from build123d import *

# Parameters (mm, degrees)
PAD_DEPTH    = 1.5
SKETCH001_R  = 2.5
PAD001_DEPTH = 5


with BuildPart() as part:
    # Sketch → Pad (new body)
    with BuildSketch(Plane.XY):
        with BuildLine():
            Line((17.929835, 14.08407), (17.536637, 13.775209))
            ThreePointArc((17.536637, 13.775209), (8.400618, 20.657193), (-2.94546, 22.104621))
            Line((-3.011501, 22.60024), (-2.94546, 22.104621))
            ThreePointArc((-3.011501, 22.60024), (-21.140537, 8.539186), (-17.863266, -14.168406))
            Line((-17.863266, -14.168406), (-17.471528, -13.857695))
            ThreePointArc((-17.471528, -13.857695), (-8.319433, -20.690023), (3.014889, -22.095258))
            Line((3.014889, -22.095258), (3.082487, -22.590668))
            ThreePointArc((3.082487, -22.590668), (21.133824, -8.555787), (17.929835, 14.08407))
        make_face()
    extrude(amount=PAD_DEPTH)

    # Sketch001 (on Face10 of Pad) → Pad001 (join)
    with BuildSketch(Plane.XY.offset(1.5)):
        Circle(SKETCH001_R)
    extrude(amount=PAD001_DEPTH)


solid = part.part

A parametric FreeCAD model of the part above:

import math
import FreeCAD as App
import Part
import Sketcher
Q = App.Units.Quantity

doc = App.newDocument("Part")
body = doc.addObject("PartDesign::Body", "Body")

# Sketch on XY plane
sketch1 = doc.addObject("Sketcher::SketchObject", "Sketch")
body.addObject(sketch1)
sketch1.AttachmentSupport = (doc.XY_Plane, [""])
sketch1.MapMode = "FlatFace"
sketch1.addGeometry(Part.LineSegment(App.Vector(17.929835, 14.08407, 0), App.Vector(17.536637, 13.775209, 0)), False)
sketch1.addGeometry(Part.ArcOfCircle(Part.Circle(App.Vector(0, -0.000001, 0), App.Vector(0, 0, 1), 22.300001), math.radians(38.150002), math.radians(97.59)), False)
sketch1.addGeometry(Part.LineSegment(App.Vector(-2.94546, 22.104621, 0), App.Vector(-3.011501, 22.60024, 0)), False)
sketch1.addGeometry(Part.ArcOfCircle(Part.Circle(App.Vector(0, 0, 0), App.Vector(0, 0, 1), 22.8), math.radians(97.589998), math.radians(218.420001)), False)
sketch1.addGeometry(Part.LineSegment(App.Vector(-17.863266, -14.168406, 0), App.Vector(-17.471528, -13.857695, 0)), False)
sketch1.addGeometry(Part.ArcOfCircle(Part.Circle(App.Vector(-0.000002, -0.000004, 0), App.Vector(0, 0, 1), 22.299996), math.radians(-141.580005), math.radians(-82.229992)), False)
sketch1.addGeometry(Part.LineSegment(App.Vector(3.014889, -22.095258, 0), App.Vector(3.082487, -22.590668, 0)), False)
sketch1.addGeometry(Part.ArcOfCircle(Part.Circle(App.Vector(0, 0, 0), App.Vector(0, 0, 1), 22.8), math.radians(-82.23), math.radians(38.149999)), False)
sketch1.addConstraint(Sketcher.Constraint("Coincident", 0, 2, 1, 1))
sketch1.addConstraint(Sketcher.Constraint("Coincident", 1, 2, 2, 1))
sketch1.addConstraint(Sketcher.Constraint("Coincident", 2, 2, 3, 1))
sketch1.addConstraint(Sketcher.Constraint("Coincident", 3, 2, 4, 1))
sketch1.addConstraint(Sketcher.Constraint("Coincident", 4, 2, 5, 1))
sketch1.addConstraint(Sketcher.Constraint("Coincident", 5, 2, 6, 1))
sketch1.addConstraint(Sketcher.Constraint("Coincident", 6, 2, 7, 1))
sketch1.addConstraint(Sketcher.Constraint("Coincident", 7, 2, 0, 1))
sketch1.addConstraint(Sketcher.Constraint("Coincident", 1, 3, -1, 1))
sketch1.addConstraint(Sketcher.Constraint("Coincident", 3, 3, -1, 1))
sketch1.addConstraint(Sketcher.Constraint("Coincident", 5, 3, -1, 1))
sketch1.addConstraint(Sketcher.Constraint("Coincident", 7, 3, -1, 1))
sketch1.addConstraint(Sketcher.Constraint("Equal", 3, 7))
sketch1.addConstraint(Sketcher.Constraint("Equal", 2, 4))
sketch1.addConstraint(Sketcher.Constraint("Radius", 1, Q("22.300001 mm")))
sketch1.addConstraint(Sketcher.Constraint("Radius", 3, Q("22.8 mm")))
sketch1.addConstraint(Sketcher.Constraint("Angle", 0, Q("-141.850008 deg")))
sketch1.addConstraint(Sketcher.Constraint("DistanceX", 2, 2, -1, 1, Q("3.011501 mm")))
sketch1.addConstraint(Sketcher.Constraint("DistanceX", 5, 2, 6, 2, Q("0.067598 mm")))
sketch1.addConstraint(Sketcher.Constraint("DistanceY", -1, 1, 0, 2, Q("13.775209 mm")))
sketch1.addConstraint(Sketcher.Constraint("DistanceX", 1, 2, -1, 1, Q("2.94546 mm")))
sketch1.addConstraint(Sketcher.Constraint("DistanceX", -1, 1, 5, 2, Q("3.014889 mm")))
sketch1.addConstraint(Sketcher.Constraint("DistanceX", 3, 2, 4, 2, Q("0.391738 mm")))
sketch1.addConstraint(Sketcher.Constraint("DistanceY", 4, 2, 5, 3, Q("13.857691 mm")))
pad1 = doc.addObject("PartDesign::Pad", "Pad")
body.addObject(pad1)
pad1.Profile = sketch1
pad1.Length = 1.5

# Sketch on XY plane
sketch2 = doc.addObject("Sketcher::SketchObject", "Sketch001")
body.addObject(sketch2)
sketch2.AttachmentSupport = (doc.XY_Plane, [""])
sketch2.MapMode = "FlatFace"
sketch2.AttachmentOffset = App.Placement(App.Vector(0, 0, 1.5), App.Rotation())
sketch2.addGeometry(Part.Circle(App.Vector(0, 0, 0), App.Vector(0, 0, 1), 2.5), False)
sketch2.addConstraint(Sketcher.Constraint("Coincident", 0, 3, -1, 1))
sketch2.addConstraint(Sketcher.Constraint("Diameter", 0, Q("5 mm")))
pad2 = doc.addObject("PartDesign::Pad", "Pad001")
body.addObject(pad2)
pad2.Profile = sketch2
pad2.Length = 5

doc.recompute()
